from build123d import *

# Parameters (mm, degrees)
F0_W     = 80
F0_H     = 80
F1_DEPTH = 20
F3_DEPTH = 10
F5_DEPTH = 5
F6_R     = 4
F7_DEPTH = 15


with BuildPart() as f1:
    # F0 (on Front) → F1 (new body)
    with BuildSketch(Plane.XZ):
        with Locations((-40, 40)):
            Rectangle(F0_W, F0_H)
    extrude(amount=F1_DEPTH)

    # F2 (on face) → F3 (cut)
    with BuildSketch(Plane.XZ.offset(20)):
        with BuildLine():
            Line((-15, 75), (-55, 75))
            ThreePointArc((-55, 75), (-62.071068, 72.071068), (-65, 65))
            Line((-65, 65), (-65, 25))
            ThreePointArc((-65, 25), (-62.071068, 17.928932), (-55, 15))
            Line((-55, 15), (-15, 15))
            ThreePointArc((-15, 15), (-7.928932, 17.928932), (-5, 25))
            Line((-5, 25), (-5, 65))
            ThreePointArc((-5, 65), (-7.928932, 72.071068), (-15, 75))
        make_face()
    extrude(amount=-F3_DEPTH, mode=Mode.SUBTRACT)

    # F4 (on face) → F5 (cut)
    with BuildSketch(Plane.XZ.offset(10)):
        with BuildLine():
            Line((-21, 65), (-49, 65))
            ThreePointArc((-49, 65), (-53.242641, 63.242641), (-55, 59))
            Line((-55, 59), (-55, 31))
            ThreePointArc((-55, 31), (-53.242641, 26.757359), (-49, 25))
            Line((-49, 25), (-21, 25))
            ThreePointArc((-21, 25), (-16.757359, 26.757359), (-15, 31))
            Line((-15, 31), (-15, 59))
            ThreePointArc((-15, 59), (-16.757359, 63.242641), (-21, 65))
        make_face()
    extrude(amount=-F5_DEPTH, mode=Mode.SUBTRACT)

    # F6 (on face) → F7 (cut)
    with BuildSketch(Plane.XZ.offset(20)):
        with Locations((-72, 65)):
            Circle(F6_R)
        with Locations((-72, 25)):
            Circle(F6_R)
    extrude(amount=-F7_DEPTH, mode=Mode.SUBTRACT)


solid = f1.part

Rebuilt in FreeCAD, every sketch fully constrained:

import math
import FreeCAD as App
import Part
import Sketcher
from FreeCAD import Vector
Q = App.Units.Quantity

doc = App.newDocument("Part")
body = doc.addObject("PartDesign::Body", "Body")

# Sketch on XZ plane
sketch1 = doc.addObject("Sketcher::SketchObject", "Sketch")
body.addObject(sketch1)
sketch1.AttachmentSupport = (doc.XZ_Plane, [""])
sketch1.MapMode = "FlatFace"
sketch1.addGeometry([
    Part.LineSegment(Vector(-80, 80, 0), Vector(-80, 0, 0)),
    Part.LineSegment(Vector(-80, 0, 0), Vector(0, 0, 0)),
    Part.LineSegment(Vector(0, 0, 0), Vector(0, 80, 0)),
    Part.LineSegment(Vector(0, 80, 0), Vector(-80, 80, 0)),
], False)
sketch1.addConstraint([
    Sketcher.Constraint("Coincident", 0, 2, 1, 1),
    Sketcher.Constraint("Coincident", 1, 2, 2, 1),
    Sketcher.Constraint("Coincident", 2, 2, 3, 1),
    Sketcher.Constraint("Coincident", 3, 2, 0, 1),
    Sketcher.Constraint("Vertical", 0),
    Sketcher.Constraint("Horizontal", 1),
    Sketcher.Constraint("Vertical", 2),
    Sketcher.Constraint("Horizontal", 3),
    Sketcher.Constraint("Coincident", 1, 2, -1, 1),
    Sketcher.Constraint("Equal", 3, 0),
    Sketcher.Constraint("DistanceX", 1, 1, 1, 2, Q("80 mm")),
])
pad1 = doc.addObject("PartDesign::Pad", "Pad")
body.addObject(pad1)
pad1.Profile = sketch1
pad1.Length = 20

# Sketch on XZ plane
sketch2 = doc.addObject("Sketcher::SketchObject", "Sketch001")
body.addObject(sketch2)
sketch2.AttachmentSupport = (doc.XZ_Plane, [""])
sketch2.MapMode = "FlatFace"
sketch2.AttachmentOffset = App.Placement(Vector(0, 0, 20), App.Rotation())
sketch2.addGeometry([
    Part.LineSegment(Vector(-15, 75, 0), Vector(-55, 75, 0)),  # 0
    Part.ArcOfCircle(Part.Circle(Vector(-55.000001, 65.000001, 0), Vector(0, 0, 1), 9.999999), math.radians(89.999996), math.radians(180.000004)),  # 1
    Part.LineSegment(Vector(-65, 65, 0), Vector(-65, 25, 0)),  # 2
    Part.ArcOfCircle(Part.Circle(Vector(-55.000001, 24.999999, 0), Vector(0, 0, 1), 9.999999), math.radians(179.999996), math.radians(270.000004)),  # 3
    Part.LineSegment(Vector(-55, 15, 0), Vector(-15, 15, 0)),  # 4
    Part.ArcOfCircle(Part.Circle(Vector(-14.999999, 24.999999, 0), Vector(0, 0, 1), 9.999999), math.radians(-90.000004), math.radians(0.000004)),  # 5
    Part.LineSegment(Vector(-5, 25, 0), Vector(-5, 65, 0)),  # 6
    Part.ArcOfCircle(Part.Circle(Vector(-14.999999, 65.000001, 0), Vector(0, 0, 1), 9.999999), math.radians(-0.000004), math.radians(90.000004)),  # 7
], False)
sketch2.addConstraint([
    Sketcher.Constraint("Tangent", 0, 2, 1, 1),
    Sketcher.Constraint("Tangent", 1, 2, 2, 1),
    Sketcher.Constraint("Tangent", 2, 2, 3, 1),
    Sketcher.Constraint("Tangent", 3, 2, 4, 1),
    Sketcher.Constraint("Tangent", 4, 2, 5, 1),
    Sketcher.Constraint("Tangent", 5, 2, 6, 1),
    Sketcher.Constraint("Tangent", 6, 2, 7, 1),
    Sketcher.Constraint("Tangent", 7, 2, 0, 1),
    Sketcher.Constraint("Horizontal", 0),
    Sketcher.Constraint("Vertical", 2),
    Sketcher.Constraint("Horizontal", 4),
    Sketcher.Constraint("Vertical", 6),
    Sketcher.Constraint("Equal", 1, 3),
    Sketcher.Constraint("Equal", 3, 5),
    Sketcher.Constraint("Equal", 5, 7),
    Sketcher.Constraint("Equal", 4, 2),
    Sketcher.Constraint("Radius", 1, Q("9.999999 mm")),
    Sketcher.Constraint("DistanceX", 0, 2, 0, 1, Q("40 mm")),
    Sketcher.Constraint("DistanceX", 1, 3, -1, 1, Q("55.000001 mm")),
    Sketcher.Constraint("DistanceY", -1, 1, 1, 3, Q("65.000001 mm")),
])
pocket1 = doc.addObject("PartDesign::Pocket", "Pocket")
body.addObject(pocket1)
pocket1.Profile = sketch2
pocket1.Length = 10

# Sketch on XZ plane
sketch3 = doc.addObject("Sketcher::SketchObject", "Sketch002")
body.addObject(sketch3)
sketch3.AttachmentSupport = (doc.XZ_Plane, [""])
sketch3.MapMode = "FlatFace"
sketch3.AttachmentOffset = App.Placement(Vector(0, 0, 10), App.Rotation())
sketch3.addGeometry([
    Part.LineSegment(Vector(-21, 65, 0), Vector(-49, 65, 0)),  # 0
    Part.ArcOfCircle(Part.Circle(Vector(-49.000001, 59.000001, 0), Vector(0, 0, 1), 5.999999), math.radians(89.99999), math.radians(180.00001)),  # 1
    Part.LineSegment(Vector(-55, 59, 0), Vector(-55, 31, 0)),  # 2
    Part.ArcOfCircle(Part.Circle(Vector(-49.000001, 30.999999, 0), Vector(0, 0, 1), 5.999999), math.radians(179.99999), math.radians(270.00001)),  # 3
    Part.LineSegment(Vector(-49, 25, 0), Vector(-21, 25, 0)),  # 4
    Part.ArcOfCircle(Part.Circle(Vector(-20.999999, 30.999999, 0), Vector(0, 0, 1), 5.999999), math.radians(-90.00001), math.radians(0.00001)),  # 5
    Part.LineSegment(Vector(-15, 31, 0), Vector(-15, 59, 0)),  # 6
    Part.ArcOfCircle(Part.Circle(Vector(-20.999999, 59.000001, 0), Vector(0, 0, 1), 5.999999), math.radians(-0.00001), math.radians(90.00001)),  # 7
], False)
sketch3.addConstraint([
    Sketcher.Constraint("Tangent", 0, 2, 1, 1),
    Sketcher.Constraint("Tangent", 1, 2, 2, 1),
    Sketcher.Constraint("Tangent", 2, 2, 3, 1),
    Sketcher.Constraint("Tangent", 3, 2, 4, 1),
    Sketcher.Constraint("Tangent", 4, 2, 5, 1),
    Sketcher.Constraint("Tangent", 5, 2, 6, 1),
    Sketcher.Constraint("Tangent", 6, 2, 7, 1),
    Sketcher.Constraint("Tangent", 7, 2, 0, 1),
    Sketcher.Constraint("Horizontal", 0),
    Sketcher.Constraint("Vertical", 2),
    Sketcher.Constraint("Horizontal", 4),
    Sketcher.Constraint("Vertical", 6),
    Sketcher.Constraint("Equal", 1, 3),
    Sketcher.Constraint("Equal", 3, 5),
    Sketcher.Constraint("Equal", 5, 7),
    Sketcher.Constraint("Equal", 4, 2),
    Sketcher.Constraint("Radius", 1, Q("5.999999 mm")),
    Sketcher.Constraint("DistanceX", 0, 2, 0, 1, Q("28 mm")),
    Sketcher.Constraint("DistanceX", 1, 3, -1, 1, Q("49.000001 mm")),
    Sketcher.Constraint("DistanceY", -1, 1, 1, 3, Q("59.000001 mm")),
])
pocket2 = doc.addObject("PartDesign::Pocket", "Pocket001")
body.addObject(pocket2)
pocket2.Profile = sketch3
pocket2.Length = 5

# Sketch on XZ plane
sketch4 = doc.addObject("Sketcher::SketchObject", "Sketch003")
body.addObject(sketch4)
sketch4.AttachmentSupport = (doc.XZ_Plane, [""])
sketch4.MapMode = "FlatFace"
sketch4.AttachmentOffset = App.Placement(Vector(0, 0, 20), App.Rotation())
sketch4.addGeometry([
    Part.Circle(Vector(-72, 65, 0), Vector(0, 0, 1), 4),
    Part.Circle(Vector(-72, 25, 0), Vector(0, 0, 1), 4),
], False)
sketch4.addConstraint([
    Sketcher.Constraint("Equal", 0, 1),
    Sketcher.Constraint("Vertical", 0, 3, 1, 3),
    Sketcher.Constraint("Diameter", 0, Q("8 mm")),
    Sketcher.Constraint("DistanceX", 0, 3, -1, 1, Q("72 mm")),
    Sketcher.Constraint("DistanceY", -1, 1, 0, 3, Q("65 mm")),
    Sketcher.Constraint("DistanceY", -1, 1, 1, 3, Q("25 mm")),
])
pocket3 = doc.addObject("PartDesign::Pocket", "Pocket002")
body.addObject(pocket3)
pocket3.Profile = sketch4
pocket3.Length = 15

doc.recompute()
